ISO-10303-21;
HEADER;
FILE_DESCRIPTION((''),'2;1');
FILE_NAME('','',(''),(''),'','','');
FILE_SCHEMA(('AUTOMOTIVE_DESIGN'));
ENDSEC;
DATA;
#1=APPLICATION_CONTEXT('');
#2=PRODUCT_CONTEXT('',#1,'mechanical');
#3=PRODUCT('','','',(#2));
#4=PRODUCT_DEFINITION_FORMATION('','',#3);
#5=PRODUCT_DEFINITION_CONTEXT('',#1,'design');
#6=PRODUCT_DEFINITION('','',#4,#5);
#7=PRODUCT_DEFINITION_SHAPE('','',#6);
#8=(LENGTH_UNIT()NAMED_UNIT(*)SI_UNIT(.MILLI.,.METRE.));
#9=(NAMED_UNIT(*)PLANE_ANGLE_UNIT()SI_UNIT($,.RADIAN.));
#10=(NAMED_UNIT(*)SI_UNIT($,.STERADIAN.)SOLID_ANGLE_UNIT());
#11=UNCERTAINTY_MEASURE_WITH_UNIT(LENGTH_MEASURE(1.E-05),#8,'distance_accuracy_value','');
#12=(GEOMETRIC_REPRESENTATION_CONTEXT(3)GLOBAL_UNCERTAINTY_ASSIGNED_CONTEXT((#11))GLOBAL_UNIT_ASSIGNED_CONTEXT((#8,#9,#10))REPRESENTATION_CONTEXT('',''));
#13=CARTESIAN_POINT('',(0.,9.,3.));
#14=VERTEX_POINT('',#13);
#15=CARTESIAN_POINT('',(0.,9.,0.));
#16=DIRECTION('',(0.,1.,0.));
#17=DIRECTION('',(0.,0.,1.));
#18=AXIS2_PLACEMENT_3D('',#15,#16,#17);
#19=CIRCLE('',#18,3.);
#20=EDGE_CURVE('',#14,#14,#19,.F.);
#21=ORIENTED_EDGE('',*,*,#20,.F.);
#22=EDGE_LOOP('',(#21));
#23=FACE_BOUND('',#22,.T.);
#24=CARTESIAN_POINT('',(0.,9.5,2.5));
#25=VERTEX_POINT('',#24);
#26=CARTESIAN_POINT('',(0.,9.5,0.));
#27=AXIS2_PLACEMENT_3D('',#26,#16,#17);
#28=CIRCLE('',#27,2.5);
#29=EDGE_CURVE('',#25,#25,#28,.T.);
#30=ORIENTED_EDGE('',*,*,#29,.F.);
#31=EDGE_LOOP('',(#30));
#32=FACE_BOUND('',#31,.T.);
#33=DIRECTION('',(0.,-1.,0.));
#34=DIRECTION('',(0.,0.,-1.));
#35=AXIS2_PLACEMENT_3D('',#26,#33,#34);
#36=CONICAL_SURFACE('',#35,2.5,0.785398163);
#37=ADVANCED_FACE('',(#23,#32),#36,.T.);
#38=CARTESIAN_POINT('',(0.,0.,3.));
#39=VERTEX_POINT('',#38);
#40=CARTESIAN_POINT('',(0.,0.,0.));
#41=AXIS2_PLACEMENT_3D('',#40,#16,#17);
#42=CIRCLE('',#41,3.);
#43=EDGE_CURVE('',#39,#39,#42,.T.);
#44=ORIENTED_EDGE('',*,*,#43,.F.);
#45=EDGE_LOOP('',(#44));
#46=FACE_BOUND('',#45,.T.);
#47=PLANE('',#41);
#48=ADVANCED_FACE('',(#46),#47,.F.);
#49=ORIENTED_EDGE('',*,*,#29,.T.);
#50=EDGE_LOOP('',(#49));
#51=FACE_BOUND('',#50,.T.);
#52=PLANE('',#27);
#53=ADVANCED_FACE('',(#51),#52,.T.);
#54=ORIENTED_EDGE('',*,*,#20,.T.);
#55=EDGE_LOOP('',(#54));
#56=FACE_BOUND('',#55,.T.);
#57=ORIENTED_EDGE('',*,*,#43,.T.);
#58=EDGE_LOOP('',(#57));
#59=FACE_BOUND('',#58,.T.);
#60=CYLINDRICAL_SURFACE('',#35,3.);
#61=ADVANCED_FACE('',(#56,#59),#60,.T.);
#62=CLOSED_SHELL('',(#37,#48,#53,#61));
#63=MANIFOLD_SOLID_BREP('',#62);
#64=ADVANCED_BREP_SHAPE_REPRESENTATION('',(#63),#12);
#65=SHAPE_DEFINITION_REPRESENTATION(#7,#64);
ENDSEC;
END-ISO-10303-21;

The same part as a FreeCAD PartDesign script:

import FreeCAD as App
import Part
import Sketcher


def edges_at(feature, points):
    """Names of the edges that pass closest to the given points."""
    edges = feature.Shape.Edges
    near = lambda p: min(range(len(edges)), key=lambda i: edges[i].distToShape(Part.Vertex(*p))[0])
    return sorted({f"Edge{near(p) + 1}" for p in points})

doc = App.newDocument("Part")
params = doc.addObject("Spreadsheet::Sheet", "Params")
for row, (alias, value) in enumerate([
    ("sketch1_diameter", "6 mm"),
    ("pad1_length", "9.5 mm"),
    ("chamfer_size", "0.5 mm"),
], start=1):
    params.set(f"A{row}", alias)
    params.set(f"B{row}", "=" + value)
    params.setAlias(f"B{row}", alias)

body = doc.addObject("PartDesign::Body", "Body")

sketch1 = doc.addObject("Sketcher::SketchObject", "Sketch")
body.addObject(sketch1)
sketch1.AttachmentSupport = (doc.XZ_Plane, [""])
sketch1.MapMode = "FlatFace"
sketch1.addGeometry(Part.Circle(App.Vector(0, 0, 0), App.Vector(0, 0, 1), 3), False)
sketch1.addConstraint([
    Sketcher.Constraint("Coincident", 0, 3, -1, 1),
    Sketcher.Constraint("Diameter", 0, 6.0),
])
sketch1.setExpression("Constraints[1]", "Params.sketch1_diameter")
pad1 = doc.addObject("PartDesign::Pad", "Pad")
body.addObject(pad1)
pad1.Profile = sketch1
pad1.setExpression("Length", "Params.pad1_length")
pad1.Reversed = True
doc.recompute()

chamfer = doc.addObject("PartDesign::Chamfer", "Chamfer")
body.addObject(chamfer)
chamfer.Base = (pad1, edges_at(pad1, [(0, 9.5, -3)]))
chamfer.setExpression("Size", "Params.chamfer_size")

doc.recompute()
